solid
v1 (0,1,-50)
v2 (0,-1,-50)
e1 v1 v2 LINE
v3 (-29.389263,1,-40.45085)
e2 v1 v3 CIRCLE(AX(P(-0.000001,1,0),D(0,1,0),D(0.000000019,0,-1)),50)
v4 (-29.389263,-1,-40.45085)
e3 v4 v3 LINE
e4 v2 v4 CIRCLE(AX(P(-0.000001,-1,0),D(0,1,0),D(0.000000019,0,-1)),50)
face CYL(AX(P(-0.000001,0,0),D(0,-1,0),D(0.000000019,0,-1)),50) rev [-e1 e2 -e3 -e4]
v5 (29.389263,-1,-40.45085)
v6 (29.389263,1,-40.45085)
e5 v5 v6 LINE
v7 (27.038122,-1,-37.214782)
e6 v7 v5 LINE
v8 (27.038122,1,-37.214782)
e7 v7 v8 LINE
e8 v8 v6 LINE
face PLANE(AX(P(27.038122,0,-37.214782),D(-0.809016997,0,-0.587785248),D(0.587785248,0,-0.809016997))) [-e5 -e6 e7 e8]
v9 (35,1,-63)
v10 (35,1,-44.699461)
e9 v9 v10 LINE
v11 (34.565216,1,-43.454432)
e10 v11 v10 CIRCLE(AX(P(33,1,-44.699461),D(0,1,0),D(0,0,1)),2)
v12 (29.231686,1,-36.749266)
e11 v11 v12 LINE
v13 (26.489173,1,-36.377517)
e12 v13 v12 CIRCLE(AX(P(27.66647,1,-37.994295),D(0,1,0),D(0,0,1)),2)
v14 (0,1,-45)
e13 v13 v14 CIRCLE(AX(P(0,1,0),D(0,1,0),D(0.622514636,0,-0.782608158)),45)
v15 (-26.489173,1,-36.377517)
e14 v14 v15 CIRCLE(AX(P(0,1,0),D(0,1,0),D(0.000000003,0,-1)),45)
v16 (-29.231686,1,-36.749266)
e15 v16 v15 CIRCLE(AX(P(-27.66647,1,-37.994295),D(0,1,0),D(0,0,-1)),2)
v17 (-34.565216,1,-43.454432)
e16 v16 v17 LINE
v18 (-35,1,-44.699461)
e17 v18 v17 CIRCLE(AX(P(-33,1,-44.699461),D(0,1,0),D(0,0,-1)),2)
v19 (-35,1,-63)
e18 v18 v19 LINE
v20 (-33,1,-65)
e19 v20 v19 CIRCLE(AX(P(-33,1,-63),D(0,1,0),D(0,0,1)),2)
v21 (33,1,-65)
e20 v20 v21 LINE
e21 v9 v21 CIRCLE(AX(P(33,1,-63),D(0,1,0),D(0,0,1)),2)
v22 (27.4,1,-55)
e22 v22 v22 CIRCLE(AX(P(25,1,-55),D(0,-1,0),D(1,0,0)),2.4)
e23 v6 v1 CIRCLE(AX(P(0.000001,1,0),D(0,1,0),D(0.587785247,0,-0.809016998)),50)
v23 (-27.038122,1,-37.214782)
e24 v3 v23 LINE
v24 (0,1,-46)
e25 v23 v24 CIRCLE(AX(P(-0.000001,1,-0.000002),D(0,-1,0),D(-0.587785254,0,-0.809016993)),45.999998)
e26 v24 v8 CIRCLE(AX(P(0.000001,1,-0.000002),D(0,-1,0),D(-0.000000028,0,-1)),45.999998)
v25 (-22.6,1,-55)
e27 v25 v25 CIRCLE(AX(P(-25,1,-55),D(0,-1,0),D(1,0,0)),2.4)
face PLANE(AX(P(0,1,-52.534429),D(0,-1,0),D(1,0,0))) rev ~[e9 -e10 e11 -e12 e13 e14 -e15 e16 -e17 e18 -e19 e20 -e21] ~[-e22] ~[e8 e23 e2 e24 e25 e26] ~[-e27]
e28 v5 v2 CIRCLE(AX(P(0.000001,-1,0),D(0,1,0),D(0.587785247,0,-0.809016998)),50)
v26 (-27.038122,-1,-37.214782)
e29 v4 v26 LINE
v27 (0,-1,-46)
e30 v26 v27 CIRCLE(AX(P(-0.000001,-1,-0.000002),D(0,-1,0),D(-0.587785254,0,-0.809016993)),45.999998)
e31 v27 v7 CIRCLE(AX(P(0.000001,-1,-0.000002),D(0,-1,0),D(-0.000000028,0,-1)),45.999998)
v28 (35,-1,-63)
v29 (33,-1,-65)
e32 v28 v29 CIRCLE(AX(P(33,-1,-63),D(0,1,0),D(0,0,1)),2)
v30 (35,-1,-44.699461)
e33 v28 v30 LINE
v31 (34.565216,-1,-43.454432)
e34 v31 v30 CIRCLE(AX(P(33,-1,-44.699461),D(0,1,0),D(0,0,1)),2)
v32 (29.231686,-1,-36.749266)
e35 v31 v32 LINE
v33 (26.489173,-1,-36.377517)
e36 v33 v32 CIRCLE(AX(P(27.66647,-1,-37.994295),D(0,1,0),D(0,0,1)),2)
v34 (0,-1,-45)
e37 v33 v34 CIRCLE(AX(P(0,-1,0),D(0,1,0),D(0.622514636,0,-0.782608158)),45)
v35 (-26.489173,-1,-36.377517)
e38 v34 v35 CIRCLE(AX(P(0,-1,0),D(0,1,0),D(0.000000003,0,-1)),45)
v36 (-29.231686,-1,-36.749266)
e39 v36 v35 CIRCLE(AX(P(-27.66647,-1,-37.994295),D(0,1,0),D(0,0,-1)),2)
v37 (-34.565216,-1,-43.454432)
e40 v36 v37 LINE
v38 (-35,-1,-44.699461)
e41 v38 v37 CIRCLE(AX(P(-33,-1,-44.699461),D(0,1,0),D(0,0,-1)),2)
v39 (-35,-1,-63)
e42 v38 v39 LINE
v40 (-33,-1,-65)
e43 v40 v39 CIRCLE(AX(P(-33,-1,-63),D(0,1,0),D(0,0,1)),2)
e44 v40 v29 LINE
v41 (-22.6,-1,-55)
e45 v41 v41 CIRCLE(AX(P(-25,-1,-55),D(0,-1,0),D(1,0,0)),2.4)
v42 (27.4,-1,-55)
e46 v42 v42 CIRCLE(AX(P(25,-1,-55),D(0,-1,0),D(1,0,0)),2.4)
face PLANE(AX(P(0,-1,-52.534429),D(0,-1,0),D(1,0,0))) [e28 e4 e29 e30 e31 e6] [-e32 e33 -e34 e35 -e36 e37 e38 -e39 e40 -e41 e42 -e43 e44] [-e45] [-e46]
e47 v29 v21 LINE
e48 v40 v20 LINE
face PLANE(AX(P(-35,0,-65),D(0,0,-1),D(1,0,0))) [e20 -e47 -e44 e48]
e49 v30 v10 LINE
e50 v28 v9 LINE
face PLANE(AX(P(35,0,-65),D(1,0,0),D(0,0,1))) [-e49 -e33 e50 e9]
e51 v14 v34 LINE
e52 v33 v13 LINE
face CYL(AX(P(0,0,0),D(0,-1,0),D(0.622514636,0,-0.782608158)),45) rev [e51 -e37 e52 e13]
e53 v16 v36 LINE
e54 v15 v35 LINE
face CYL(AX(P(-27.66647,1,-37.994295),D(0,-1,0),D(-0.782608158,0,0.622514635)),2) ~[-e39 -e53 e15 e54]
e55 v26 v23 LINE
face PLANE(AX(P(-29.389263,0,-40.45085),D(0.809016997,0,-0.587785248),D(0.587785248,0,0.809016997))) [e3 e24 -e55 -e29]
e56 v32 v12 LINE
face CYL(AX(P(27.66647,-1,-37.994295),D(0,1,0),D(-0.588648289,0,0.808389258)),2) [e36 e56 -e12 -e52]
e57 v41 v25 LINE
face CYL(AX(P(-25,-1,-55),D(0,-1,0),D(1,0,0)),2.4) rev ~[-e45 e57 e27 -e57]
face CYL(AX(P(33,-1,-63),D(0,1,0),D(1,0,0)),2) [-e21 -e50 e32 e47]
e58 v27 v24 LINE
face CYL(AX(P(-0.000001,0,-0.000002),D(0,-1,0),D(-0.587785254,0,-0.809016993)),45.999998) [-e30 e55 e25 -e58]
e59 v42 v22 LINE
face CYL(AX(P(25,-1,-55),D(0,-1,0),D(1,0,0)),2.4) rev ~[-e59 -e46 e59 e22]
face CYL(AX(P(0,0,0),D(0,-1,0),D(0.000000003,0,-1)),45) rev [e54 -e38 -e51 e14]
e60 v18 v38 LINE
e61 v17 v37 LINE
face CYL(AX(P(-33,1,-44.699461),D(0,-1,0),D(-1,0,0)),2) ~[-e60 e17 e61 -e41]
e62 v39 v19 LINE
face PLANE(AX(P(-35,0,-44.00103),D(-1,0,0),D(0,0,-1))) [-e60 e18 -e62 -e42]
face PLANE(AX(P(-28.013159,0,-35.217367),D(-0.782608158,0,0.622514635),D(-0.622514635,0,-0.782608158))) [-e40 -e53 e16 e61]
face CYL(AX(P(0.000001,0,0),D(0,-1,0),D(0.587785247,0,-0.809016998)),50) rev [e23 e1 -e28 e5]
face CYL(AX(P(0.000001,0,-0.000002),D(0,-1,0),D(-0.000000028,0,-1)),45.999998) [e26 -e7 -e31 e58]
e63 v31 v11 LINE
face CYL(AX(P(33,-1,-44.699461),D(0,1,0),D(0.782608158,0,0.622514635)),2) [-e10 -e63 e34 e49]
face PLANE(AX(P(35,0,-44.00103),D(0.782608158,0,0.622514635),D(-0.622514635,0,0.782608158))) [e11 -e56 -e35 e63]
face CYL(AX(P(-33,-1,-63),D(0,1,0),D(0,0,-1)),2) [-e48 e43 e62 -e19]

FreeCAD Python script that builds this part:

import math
import FreeCAD as App
import Part
import Sketcher
from FreeCAD import Vector
Q = App.Units.Quantity


def edges_at(feature, points):
    """Names of the edges that pass closest to the given points."""
    edges = feature.Shape.Edges
    near = lambda p: min(range(len(edges)), key=lambda i: edges[i].distToShape(Part.Vertex(*p))[0])
    return sorted({f"Edge{near(p) + 1}" for p in points})

doc = App.newDocument("Part")
body = doc.addObject("PartDesign::Body", "Body")

sketch1 = body.newObject("Sketcher::SketchObject", "Sketch")
sketch1.AttachmentSupport = (doc.getObject("XZ_Plane"), [""])
sketch1.MapMode = "FlatFace"
sketch1.addGeometry([
    Part.ArcOfCircle(Part.Circle(Vector(0, 0, 0), Vector(0, 0, 1), 45), math.radians(-90), math.radians(-51.5)),
    Part.ArcOfCircle(Part.Circle(Vector(0, 0, 0), Vector(0, 0, 1), 45), math.radians(-128.5), math.radians(-90)),
    Part.LineSegment(Vector(-28.013159, -35.217367, 0), Vector(-35, -44.00103, 0)),
    Part.LineSegment(Vector(-35, -44.00103, 0), Vector(-35, -65, 0)),
    Part.LineSegment(Vector(-35, -65, 0), Vector(35, -65, 0)),
    Part.LineSegment(Vector(35, -65, 0), Vector(35, -44.00103, 0)),
    Part.LineSegment(Vector(35, -44.00103, 0), Vector(28.013159, -35.217367, 0)),
    Part.ArcOfCircle(Part.Circle(Vector(0.000001, 0, 0), Vector(0, 0, 1), 50), math.radians(-90.000001), math.radians(-54)),
    Part.ArcOfCircle(Part.Circle(Vector(-0.000001, 0, 0), Vector(0, 0, 1), 50), math.radians(-126), math.radians(-89.999999)),
    Part.LineSegment(Vector(-29.389263, -40.45085, 0), Vector(-27.038122, -37.214782, 0)),
    Part.ArcOfCircle(Part.Circle(Vector(-0.000001, -0.000002, 0), Vector(0, 0, 1), 45.999998), math.radians(-126), math.radians(-89.999998)),
    Part.ArcOfCircle(Part.Circle(Vector(0.000001, -0.000002, 0), Vector(0, 0, 1), 45.999998), math.radians(-90.000002), math.radians(-54)),
    Part.LineSegment(Vector(27.038122, -37.214782, 0), Vector(29.389263, -40.45085, 0)),
], False)
sketch1.addConstraint([
    Sketcher.Constraint("Tangent", 0, 1, 1, 2),
    Sketcher.Constraint("Coincident", 1, 1, 2, 1),
    Sketcher.Constraint("Coincident", 2, 2, 3, 1),
    Sketcher.Constraint("Coincident", 3, 2, 4, 1),
    Sketcher.Constraint("Coincident", 4, 2, 5, 1),
    Sketcher.Constraint("Coincident", 5, 2, 6, 1),
    Sketcher.Constraint("Coincident", 6, 2, 0, 2),
    Sketcher.Constraint("Tangent", 7, 1, 8, 2),
    Sketcher.Constraint("Coincident", 8, 1, 9, 1),
    Sketcher.Constraint("Coincident", 9, 2, 10, 1),
    Sketcher.Constraint("Tangent", 10, 2, 11, 1),
    Sketcher.Constraint("Coincident", 11, 2, 12, 1),
    Sketcher.Constraint("Coincident", 12, 2, 7, 2),
    Sketcher.Constraint("Vertical", 3),
    Sketcher.Constraint("Horizontal", 4),
    Sketcher.Constraint("Vertical", 5),
    Sketcher.Constraint("Coincident", 0, 3, -1, 1),
    Sketcher.Constraint("Coincident", 7, 3, -1, 1),
    Sketcher.Constraint("Coincident", 10, 3, -1, 1),
    Sketcher.Constraint("Equal", 0, 1),
    Sketcher.Constraint("Equal", 7, 8),
    Sketcher.Constraint("Equal", 10, 11),
    Sketcher.Constraint("Symmetric", 2, 2, 5, 2, -2),
    Sketcher.Constraint("PointOnObject", 0, 1, -2),
    Sketcher.Constraint("PointOnObject", 7, 1, -2),
    Sketcher.Constraint("PointOnObject", 10, 2, -2),
    Sketcher.Constraint("Horizontal", 1, 1, 6, 2),
    Sketcher.Constraint("Horizontal", 9, 2, 11, 2),
    Sketcher.Constraint("Horizontal", 8, 1, 12, 2),
    Sketcher.Constraint("Radius", 0, Q("45 mm")),
    Sketcher.Constraint("Radius", 7, Q("50 mm")),
    Sketcher.Constraint("Radius", 10, Q("45.999998 mm")),
    Sketcher.Constraint("DistanceX", 4, 1, 4, 2, Q("70 mm")),
    Sketcher.Constraint("Angle", 9, Q("54 deg")),
    Sketcher.Constraint("DistanceY", 3, 2, -1, 1, Q("65 mm")),
    Sketcher.Constraint("Angle", 2, Q("-128.5 deg")),
    Sketcher.Constraint("DistanceY", 3, 2, 3, 1, Q("20.99897 mm")),
    Sketcher.Constraint("DistanceY", 8, 1, -1, 1, Q("40.45085 mm")),
])
pad1 = body.newObject("PartDesign::Pad", "Pad")
pad1.Profile = sketch1
pad1.Length = 2
pad1.Midplane = True
doc.recompute()

fillet = body.newObject("PartDesign::Fillet", "Fillet")
fillet.Base = (pad1, edges_at(pad1, [
    (28.013, 0, -35.217),
    (35, 0, -44.001),
    (-28.013, 0, -35.217),
    (-35, 0, -44.001),
]))
fillet.Radius = 2

sketch2 = body.newObject("Sketcher::SketchObject", "Sketch001")
sketch2.AttachmentSupport = (doc.getObject("XZ_Plane"), [""])
sketch2.MapMode = "FlatFace"
sketch2.AttachmentOffset = App.Placement(Vector(0, 0, 1), App.Rotation())
sketch2.addGeometry([
    Part.Circle(Vector(-25, -55, 0), Vector(0, 0, 1), 2.4),
    Part.Circle(Vector(25, -55, 0), Vector(0, 0, 1), 2.4),
], False)
sketch2.addConstraint([
    Sketcher.Constraint("Equal", 0, 1),
    Sketcher.Constraint("Symmetric", 0, 3, 1, 3, -2),
    Sketcher.Constraint("Diameter", 0, Q("4.8 mm")),
    Sketcher.Constraint("DistanceX", 0, 3, -1, 1, Q("25 mm")),
    Sketcher.Constraint("DistanceY", 0, 3, -1, 1, Q("55 mm")),
])
pocket1 = body.newObject("PartDesign::Pocket", "Pocket")
pocket1.Profile = sketch2
pocket1.Length = 25
doc.recompute()

fillet2 = body.newObject("PartDesign::Fillet", "Fillet001")
fillet2.Base = (pocket1, edges_at(pocket1, [(35, 0, -65), (-35, 0, -65)]))
fillet2.Radius = 2

doc.recompute()
